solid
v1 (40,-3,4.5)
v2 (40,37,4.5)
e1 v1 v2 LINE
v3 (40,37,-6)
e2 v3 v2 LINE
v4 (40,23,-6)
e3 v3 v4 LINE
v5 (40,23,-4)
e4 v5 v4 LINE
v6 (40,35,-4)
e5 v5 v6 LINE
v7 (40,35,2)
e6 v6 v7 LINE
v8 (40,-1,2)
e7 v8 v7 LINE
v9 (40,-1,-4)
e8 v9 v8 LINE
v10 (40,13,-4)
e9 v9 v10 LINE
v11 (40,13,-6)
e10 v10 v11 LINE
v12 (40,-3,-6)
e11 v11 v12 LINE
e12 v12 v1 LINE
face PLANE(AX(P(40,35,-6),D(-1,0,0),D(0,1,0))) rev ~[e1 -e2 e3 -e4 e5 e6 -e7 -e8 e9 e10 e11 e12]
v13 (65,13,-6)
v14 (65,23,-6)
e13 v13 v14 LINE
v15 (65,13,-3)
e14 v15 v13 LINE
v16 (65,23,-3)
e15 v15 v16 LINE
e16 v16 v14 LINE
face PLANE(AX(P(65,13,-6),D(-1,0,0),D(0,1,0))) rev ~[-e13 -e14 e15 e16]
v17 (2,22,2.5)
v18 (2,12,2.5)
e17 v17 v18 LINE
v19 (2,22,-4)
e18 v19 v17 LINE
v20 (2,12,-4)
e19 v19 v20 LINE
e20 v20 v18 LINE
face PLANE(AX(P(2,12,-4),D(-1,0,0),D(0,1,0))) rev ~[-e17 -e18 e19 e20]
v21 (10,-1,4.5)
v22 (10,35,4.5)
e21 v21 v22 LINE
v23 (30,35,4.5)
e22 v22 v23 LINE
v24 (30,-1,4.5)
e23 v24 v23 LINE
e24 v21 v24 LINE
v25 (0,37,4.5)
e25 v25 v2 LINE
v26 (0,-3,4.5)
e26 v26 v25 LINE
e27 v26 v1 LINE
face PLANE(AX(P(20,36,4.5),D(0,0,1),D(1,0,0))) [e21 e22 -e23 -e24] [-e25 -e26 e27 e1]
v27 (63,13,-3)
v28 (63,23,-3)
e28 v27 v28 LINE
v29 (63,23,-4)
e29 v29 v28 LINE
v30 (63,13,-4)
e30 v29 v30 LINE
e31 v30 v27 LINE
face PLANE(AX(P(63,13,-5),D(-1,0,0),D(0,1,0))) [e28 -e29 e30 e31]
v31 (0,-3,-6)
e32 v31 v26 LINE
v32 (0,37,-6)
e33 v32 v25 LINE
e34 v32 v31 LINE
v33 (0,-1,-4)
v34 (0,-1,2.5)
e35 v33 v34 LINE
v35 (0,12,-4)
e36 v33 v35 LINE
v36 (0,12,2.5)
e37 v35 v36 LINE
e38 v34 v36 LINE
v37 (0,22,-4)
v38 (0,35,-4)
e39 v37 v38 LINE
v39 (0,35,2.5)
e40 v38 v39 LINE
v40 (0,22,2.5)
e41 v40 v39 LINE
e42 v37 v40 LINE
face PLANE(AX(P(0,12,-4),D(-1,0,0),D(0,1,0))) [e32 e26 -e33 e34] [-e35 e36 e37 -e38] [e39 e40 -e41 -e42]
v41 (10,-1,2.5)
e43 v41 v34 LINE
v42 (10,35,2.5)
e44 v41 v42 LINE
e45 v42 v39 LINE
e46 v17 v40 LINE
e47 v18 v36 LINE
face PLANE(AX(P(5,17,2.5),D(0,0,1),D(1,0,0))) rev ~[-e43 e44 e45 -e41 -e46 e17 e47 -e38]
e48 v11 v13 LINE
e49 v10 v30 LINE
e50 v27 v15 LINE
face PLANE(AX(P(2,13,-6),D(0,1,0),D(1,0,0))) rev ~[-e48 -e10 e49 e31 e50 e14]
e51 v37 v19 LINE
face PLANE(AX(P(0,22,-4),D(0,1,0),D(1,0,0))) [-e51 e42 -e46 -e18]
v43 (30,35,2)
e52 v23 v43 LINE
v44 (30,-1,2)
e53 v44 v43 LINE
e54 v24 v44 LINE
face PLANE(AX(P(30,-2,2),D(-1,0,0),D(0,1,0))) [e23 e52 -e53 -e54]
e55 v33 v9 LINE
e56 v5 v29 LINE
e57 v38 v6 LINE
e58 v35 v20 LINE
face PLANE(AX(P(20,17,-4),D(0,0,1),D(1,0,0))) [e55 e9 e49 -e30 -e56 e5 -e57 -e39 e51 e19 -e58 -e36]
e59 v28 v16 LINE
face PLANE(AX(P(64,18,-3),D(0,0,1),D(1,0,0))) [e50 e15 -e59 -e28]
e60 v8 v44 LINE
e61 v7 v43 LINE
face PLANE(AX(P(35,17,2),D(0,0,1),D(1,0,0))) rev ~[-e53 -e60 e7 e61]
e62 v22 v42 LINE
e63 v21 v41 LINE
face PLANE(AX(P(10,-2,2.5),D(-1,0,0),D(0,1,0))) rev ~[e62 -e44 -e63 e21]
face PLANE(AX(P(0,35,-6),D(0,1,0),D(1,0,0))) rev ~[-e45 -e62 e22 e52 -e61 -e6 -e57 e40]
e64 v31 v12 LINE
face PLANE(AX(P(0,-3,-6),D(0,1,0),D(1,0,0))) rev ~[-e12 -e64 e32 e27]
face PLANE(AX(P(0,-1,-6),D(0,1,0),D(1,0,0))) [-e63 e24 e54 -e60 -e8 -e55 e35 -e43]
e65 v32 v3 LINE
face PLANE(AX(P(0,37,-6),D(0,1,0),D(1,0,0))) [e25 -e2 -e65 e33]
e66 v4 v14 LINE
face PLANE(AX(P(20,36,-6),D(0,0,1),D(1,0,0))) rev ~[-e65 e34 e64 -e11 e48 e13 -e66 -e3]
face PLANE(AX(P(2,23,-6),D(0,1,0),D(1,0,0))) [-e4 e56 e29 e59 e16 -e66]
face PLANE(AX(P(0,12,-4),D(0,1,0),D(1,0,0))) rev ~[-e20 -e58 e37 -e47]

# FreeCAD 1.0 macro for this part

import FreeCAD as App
import Part
import Sketcher


def add_polygon(sketch, points):
    """Adds a closed chain of lines whose ends are joined by coincident constraints."""
    first, n = sketch.GeometryCount, len(points)
    for a, b in zip(points, points[1:] + points[:1]):
        sketch.addGeometry(Part.LineSegment(App.Vector(*a, 0), App.Vector(*b, 0)), False)
    for i in range(n):
        sketch.addConstraint(Sketcher.Constraint("Coincident", first + i, 2, first + (i + 1) % n, 1))

doc = App.newDocument("Part")
body = doc.addObject("PartDesign::Body", "Body")

# Sketch on XY plane
sketch1 = body.newObject("Sketcher::SketchObject", "Sketch")
sketch1.AttachmentSupport = (doc.getObject("XY_Plane"), [""])
sketch1.MapMode = "FlatFace"
sketch1.AttachmentOffset = App.Placement(App.Vector(0, 0, -6), App.Rotation())
add_polygon(sketch1, [(0, 35), (0, -1), (40, -1), (40, 35)])  # lines 0-3
sketch1.addConstraint([
    Sketcher.Constraint("Vertical", 0),
    Sketcher.Constraint("Horizontal", 1),
    Sketcher.Constraint("Vertical", 2),
    Sketcher.Constraint("Horizontal", 3),
    Sketcher.Constraint("PointOnObject", 0, 2, -2),
    Sketcher.Constraint("DistanceX", 1, 1, 1, 2, 40.0),
    Sketcher.Constraint("DistanceY", 0, 2, 0, 1, 36.0),
    Sketcher.Constraint("DistanceY", 0, 2, -1, 1, 1.0),
])
pad1 = body.newObject("PartDesign::Pad", "Pad")
pad1.Profile = sketch1
pad1.Length = 2
body2 = doc.addObject("PartDesign::Body", "Body001")

# Sketch on XY plane
sketch2 = body2.newObject("Sketcher::SketchObject", "Sketch001")
sketch2.AttachmentSupport = (doc.getObject("XY_Plane001"), [""])
sketch2.MapMode = "FlatFace"
sketch2.AttachmentOffset = App.Placement(App.Vector(0, 0, 2), App.Rotation())
add_polygon(sketch2, [(30, 36), (30, -2), (40, -2), (40, 36)])  # lines 0-3
sketch2.addConstraint([
    Sketcher.Constraint("Vertical", 0),
    Sketcher.Constraint("Horizontal", 1),
    Sketcher.Constraint("Vertical", 2),
    Sketcher.Constraint("Horizontal", 3),
    Sketcher.Constraint("DistanceX", 1, 1, 1, 2, 10.0),
    Sketcher.Constraint("DistanceY", 0, 2, 0, 1, 38.0),
    Sketcher.Constraint("DistanceX", -1, 1, 0, 2, 30.0),
    Sketcher.Constraint("DistanceY", 0, 2, -1, 1, 2.0),
])
pad2 = body2.newObject("PartDesign::Pad", "Pad001")
pad2.Profile = sketch2
pad2.Length = 2.5
body3 = doc.addObject("PartDesign::Body", "Body002")

# Sketch on XY plane
sketch3 = body3.newObject("Sketcher::SketchObject", "Sketch002")
sketch3.AttachmentSupport = (doc.getObject("XY_Plane002"), [""])
sketch3.MapMode = "FlatFace"
sketch3.AttachmentOffset = App.Placement(App.Vector(0, 0, -6), App.Rotation())
add_polygon(sketch3, [(0, -1), (0, -3), (40, -3), (40, -1)])  # lines 0-3
sketch3.addConstraint([
    Sketcher.Constraint("Vertical", 0),
    Sketcher.Constraint("Horizontal", 1),
    Sketcher.Constraint("Vertical", 2),
    Sketcher.Constraint("Horizontal", 3),
    Sketcher.Constraint("PointOnObject", 0, 2, -2),
    Sketcher.Constraint("DistanceX", 1, 1, 1, 2, 40.0),
    Sketcher.Constraint("DistanceY", 0, 2, 0, 1, 2.0),
    Sketcher.Constraint("DistanceY", 0, 2, -1, 1, 3.0),
])
pad3 = body3.newObject("PartDesign::Pad", "Pad002")
pad3.Profile = sketch3
pad3.Length = 10.5
body4 = doc.addObject("PartDesign::Body", "Body003")

# Sketch on XY plane
sketch4 = body4.newObject("Sketcher::SketchObject", "Sketch003")
sketch4.AttachmentSupport = (doc.getObject("XY_Plane003"), [""])
sketch4.MapMode = "FlatFace"
sketch4.AttachmentOffset = App.Placement(App.Vector(0, 0, -6), App.Rotation())
add_polygon(sketch4, [(0, 37), (0, 35), (40, 35), (40, 37)])  # lines 0-3
sketch4.addConstraint([
    Sketcher.Constraint("Vertical", 0),
    Sketcher.Constraint("Horizontal", 1),
    Sketcher.Constraint("Vertical", 2),
    Sketcher.Constraint("Horizontal", 3),
    Sketcher.Constraint("PointOnObject", 0, 2, -2),
    Sketcher.Constraint("DistanceX", 1, 1, 1, 2, 40.0),
    Sketcher.Constraint("DistanceY", 0, 2, 0, 1, 2.0),
    Sketcher.Constraint("DistanceY", -1, 1, 0, 2, 35.0),
])
pad4 = body4.newObject("PartDesign::Pad", "Pad003")
pad4.Profile = sketch4
pad4.Length = 10.5
body5 = doc.addObject("PartDesign::Body", "Body004")

# Sketch on XY plane
sketch5 = body5.newObject("Sketcher::SketchObject", "Sketch004")
sketch5.AttachmentSupport = (doc.getObject("XY_Plane004"), [""])
sketch5.MapMode = "FlatFace"
sketch5.AttachmentOffset = App.Placement(App.Vector(0, 0, -4), App.Rotation())
add_polygon(sketch5, [(0, 22), (0, 12), (2, 12), (2, 22)])  # lines 0-3
sketch5.addConstraint([
    Sketcher.Constraint("Vertical", 0),
    Sketcher.Constraint("Horizontal", 1),
    Sketcher.Constraint("Vertical", 2),
    Sketcher.Constraint("Horizontal", 3),
    Sketcher.Constraint("PointOnObject", 0, 2, -2),
    Sketcher.Constraint("DistanceX", 1, 1, 1, 2, 2.0),
    Sketcher.Constraint("DistanceY", 0, 2, 0, 1, 10.0),
    Sketcher.Constraint("DistanceY", -1, 1, 0, 2, 12.0),
])
pad5 = body5.newObject("PartDesign::Pad", "Pad004")
pad5.Profile = sketch5
pad5.Length = 8.5
body6 = doc.addObject("PartDesign::Body", "Body005")

# Sketch on XY plane
sketch6 = body6.newObject("Sketcher::SketchObject", "Sketch005")
sketch6.AttachmentSupport = (doc.getObject("XY_Plane005"), [""])
sketch6.MapMode = "FlatFace"
sketch6.AttachmentOffset = App.Placement(App.Vector(0, 0, -6), App.Rotation())
add_polygon(sketch6, [(2, 23), (2, 13), (65, 13), (65, 23)])  # lines 0-3
sketch6.addConstraint([
    Sketcher.Constraint("Vertical", 0),
    Sketcher.Constraint("Horizontal", 1),
    Sketcher.Constraint("Vertical", 2),
    Sketcher.Constraint("Horizontal", 3),
    Sketcher.Constraint("DistanceX", 1, 1, 1, 2, 63.0),
    Sketcher.Constraint("DistanceY", 0, 2, 0, 1, 10.0),
    Sketcher.Constraint("DistanceX", -1, 1, 0, 2, 2.0),
    Sketcher.Constraint("DistanceY", -1, 1, 0, 2, 13.0),
])
pad6 = body6.newObject("PartDesign::Pad", "Pad005")
pad6.Profile = sketch6
pad6.Length = 2
body7 = doc.addObject("PartDesign::Body", "Body006")

# Sketch on XY plane
sketch7 = body7.newObject("Sketcher::SketchObject", "Sketch006")
sketch7.AttachmentSupport = (doc.getObject("XY_Plane006"), [""])
sketch7.MapMode = "FlatFace"
sketch7.AttachmentOffset = App.Placement(App.Vector(0, 0, -5), App.Rotation())
add_polygon(sketch7, [(63, 23), (63, 13), (65, 13), (65, 23)])  # lines 0-3
sketch7.addConstraint([
    Sketcher.Constraint("Vertical", 0),
    Sketcher.Constraint("Horizontal", 1),
    Sketcher.Constraint("Vertical", 2),
    Sketcher.Constraint("Horizontal", 3),
    Sketcher.Constraint("DistanceX", 1, 1, 1, 2, 2.0),
    Sketcher.Constraint("DistanceY", 0, 2, 0, 1, 10.0),
    Sketcher.Constraint("DistanceX", -1, 1, 0, 2, 63.0),
    Sketcher.Constraint("DistanceY", -1, 1, 0, 2, 13.0),
])
pad7 = body7.newObject("PartDesign::Pad", "Pad006")
pad7.Profile = sketch7
pad7.Length = 2
body8 = doc.addObject("PartDesign::Body", "Body007")
body8.AllowCompound = True

# Sketch on XY plane
sketch8 = body8.newObject("Sketcher::SketchObject", "Sketch007")
sketch8.AttachmentSupport = (doc.getObject("XY_Plane007"), [""])
sketch8.MapMode = "FlatFace"
sketch8.AttachmentOffset = App.Placement(App.Vector(0, 0, 2.5), App.Rotation())
add_polygon(sketch8, [(0, 36), (0, -2), (10, -2), (10, 36)])  # lines 0-3
sketch8.addConstraint([
    Sketcher.Constraint("Vertical", 0),
    Sketcher.Constraint("Horizontal", 1),
    Sketcher.Constraint("Vertical", 2),
    Sketcher.Constraint("Horizontal", 3),
    Sketcher.Constraint("PointOnObject", 0, 2, -2),
    Sketcher.Constraint("DistanceX", 1, 1, 1, 2, 10.0),
    Sketcher.Constraint("DistanceY", 0, 2, 0, 1, 38.0),
    Sketcher.Constraint("DistanceY", 0, 2, -1, 1, 2.0),
])
pad8 = body8.newObject("PartDesign::Pad", "Pad007")
pad8.Profile = sketch8
pad8.Length = 2
doc.recompute()

boolean = body8.newObject("PartDesign::Boolean", "Boolean")
boolean.Type = "Fuse"
boolean.addObjects([body])
doc.recompute()

boolean2 = body8.newObject("PartDesign::Boolean", "Boolean001")
boolean2.Type = "Fuse"
boolean2.addObjects([body2])
doc.recompute()

boolean3 = body8.newObject("PartDesign::Boolean", "Boolean002")
boolean3.Type = "Fuse"
boolean3.addObjects([body3])
doc.recompute()

boolean4 = body8.newObject("PartDesign::Boolean", "Boolean003")
boolean4.Type = "Fuse"
boolean4.addObjects([body4])
doc.recompute()

boolean5 = body8.newObject("PartDesign::Boolean", "Boolean004")
boolean5.Type = "Fuse"
boolean5.addObjects([body5])
doc.recompute()

boolean6 = body8.newObject("PartDesign::Boolean", "Boolean005")
boolean6.Type = "Fuse"
boolean6.addObjects([body6])
doc.recompute()

boolean7 = body8.newObject("PartDesign::Boolean", "Boolean006")
boolean7.Type = "Fuse"
boolean7.addObjects([body7])

doc.recompute()
